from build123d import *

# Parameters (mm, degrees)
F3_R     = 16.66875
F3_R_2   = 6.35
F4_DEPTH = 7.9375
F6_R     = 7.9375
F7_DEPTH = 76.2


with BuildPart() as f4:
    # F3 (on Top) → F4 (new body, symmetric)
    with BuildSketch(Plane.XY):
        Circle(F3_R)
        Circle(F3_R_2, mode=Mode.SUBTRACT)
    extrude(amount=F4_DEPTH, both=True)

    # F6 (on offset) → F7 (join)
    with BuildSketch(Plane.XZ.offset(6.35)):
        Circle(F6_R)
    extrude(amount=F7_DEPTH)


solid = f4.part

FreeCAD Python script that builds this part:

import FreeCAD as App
import Part
import Sketcher
from FreeCAD import Vector
Q = App.Units.Quantity

doc = App.newDocument("Part")
body = doc.addObject("PartDesign::Body", "Body")

sketch1 = body.newObject("Sketcher::SketchObject", "Sketch")
sketch1.AttachmentSupport = (doc.getObject("XY_Plane"), [""])
sketch1.MapMode = "FlatFace"
sketch1.addGeometry(Part.Circle(Vector(0, 0, 0), Vector(0, 0, 1), 16.66875), False)
sketch1.addGeometry(Part.Circle(Vector(0, 0, 0), Vector(0, 0, 1), 6.35), False)
sketch1.addConstraint(Sketcher.Constraint("Coincident", 0, 3, -1, 1))
sketch1.addConstraint(Sketcher.Constraint("Coincident", 1, 3, -1, 1))
sketch1.addConstraint(Sketcher.Constraint("Diameter", 1, Q("0.5 in")))
sketch1.addConstraint(Sketcher.Constraint("Diameter", 0, Q("1.3125 in")))
pad1 = body.newObject("PartDesign::Pad", "Pad")
pad1.Profile = sketch1
pad1.Length = Q("0.625 in")
pad1.Midplane = True

sketch2 = body.newObject("Sketcher::SketchObject", "Sketch001")
sketch2.AttachmentSupport = (doc.getObject("XZ_Plane"), [""])
sketch2.MapMode = "FlatFace"
sketch2.AttachmentOffset = App.Placement(Vector(0, 0, 0.25 * 25.4), App.Rotation())
sketch2.addGeometry(Part.Circle(Vector(0, 0, 0), Vector(0, 0, 1), 7.9375), False)
sketch2.addConstraint(Sketcher.Constraint("Coincident", 0, 3, -1, 1))
sketch2.addConstraint(Sketcher.Constraint("Diameter", 0, Q("0.625 in")))
pad2 = body.newObject("PartDesign::Pad", "Pad001")
pad2.Profile = sketch2
pad2.Length = Q("3 in")

doc.recompute()
